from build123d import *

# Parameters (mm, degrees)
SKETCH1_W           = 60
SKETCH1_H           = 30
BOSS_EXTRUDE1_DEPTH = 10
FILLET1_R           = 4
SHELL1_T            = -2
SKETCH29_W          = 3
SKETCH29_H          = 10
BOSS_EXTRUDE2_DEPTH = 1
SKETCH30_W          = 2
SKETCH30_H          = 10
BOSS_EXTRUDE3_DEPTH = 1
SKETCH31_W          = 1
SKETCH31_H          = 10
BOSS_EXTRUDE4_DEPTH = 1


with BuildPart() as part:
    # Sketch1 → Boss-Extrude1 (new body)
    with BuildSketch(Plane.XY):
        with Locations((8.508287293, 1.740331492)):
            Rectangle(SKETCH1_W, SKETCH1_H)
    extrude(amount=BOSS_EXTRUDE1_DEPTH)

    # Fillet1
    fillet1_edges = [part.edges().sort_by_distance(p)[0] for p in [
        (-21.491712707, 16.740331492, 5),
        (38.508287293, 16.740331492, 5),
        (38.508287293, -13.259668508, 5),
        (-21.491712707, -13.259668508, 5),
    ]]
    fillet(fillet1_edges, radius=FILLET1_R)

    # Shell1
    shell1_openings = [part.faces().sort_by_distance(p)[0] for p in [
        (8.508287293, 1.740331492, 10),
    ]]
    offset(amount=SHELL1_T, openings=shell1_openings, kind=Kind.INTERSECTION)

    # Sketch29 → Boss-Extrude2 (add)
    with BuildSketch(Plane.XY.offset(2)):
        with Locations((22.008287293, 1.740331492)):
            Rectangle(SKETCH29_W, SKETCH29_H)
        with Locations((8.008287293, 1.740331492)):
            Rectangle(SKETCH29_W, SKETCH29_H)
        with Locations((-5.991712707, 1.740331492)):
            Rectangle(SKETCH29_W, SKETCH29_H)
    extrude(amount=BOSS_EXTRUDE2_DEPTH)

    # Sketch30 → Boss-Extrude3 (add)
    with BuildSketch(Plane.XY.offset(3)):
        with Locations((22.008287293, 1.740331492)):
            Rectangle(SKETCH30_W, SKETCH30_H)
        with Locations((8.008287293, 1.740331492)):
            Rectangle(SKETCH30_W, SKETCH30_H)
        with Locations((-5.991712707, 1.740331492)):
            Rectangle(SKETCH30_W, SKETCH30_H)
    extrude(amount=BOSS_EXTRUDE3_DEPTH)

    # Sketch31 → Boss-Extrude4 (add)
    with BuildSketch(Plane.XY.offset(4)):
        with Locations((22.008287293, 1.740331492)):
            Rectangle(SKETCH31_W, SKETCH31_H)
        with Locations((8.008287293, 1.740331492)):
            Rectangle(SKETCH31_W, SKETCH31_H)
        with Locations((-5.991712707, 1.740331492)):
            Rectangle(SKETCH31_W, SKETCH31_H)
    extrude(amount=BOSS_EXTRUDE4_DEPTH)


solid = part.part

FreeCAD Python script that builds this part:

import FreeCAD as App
import Part
import Sketcher
Q = App.Units.Quantity


def edges_at(feature, points):
    """Names of the edges that pass closest to the given points."""
    edges = feature.Shape.Edges
    near = lambda p: min(range(len(edges)), key=lambda i: edges[i].distToShape(Part.Vertex(*p))[0])
    return sorted({f"Edge{near(p) + 1}" for p in points})


def faces_at(feature, points):
    """Names of the faces that lie closest to the given points."""
    faces = feature.Shape.Faces
    near = lambda p: min(range(len(faces)), key=lambda i: faces[i].distToShape(Part.Vertex(*p))[0])
    return sorted({f"Face{near(p) + 1}" for p in points})


def add_polygon(sketch, points):
    """Adds a closed chain of lines whose ends are joined by coincident constraints."""
    first, n = sketch.GeometryCount, len(points)
    for a, b in zip(points, points[1:] + points[:1]):
        sketch.addGeometry(Part.LineSegment(App.Vector(*a, 0), App.Vector(*b, 0)), False)
    for i in range(n):
        sketch.addConstraint(Sketcher.Constraint("Coincident", first + i, 2, first + (i + 1) % n, 1))

doc = App.newDocument("Part")
body = doc.addObject("PartDesign::Body", "Body")

sketch1 = body.newObject("Sketcher::SketchObject", "Sketch")
sketch1.AttachmentSupport = (doc.getObject("XY_Plane"), [""])
sketch1.MapMode = "FlatFace"
add_polygon(sketch1, [(-21, 17), (-21, -13), (39, -13), (39, 17)])
sketch1.addConstraint([
    Sketcher.Constraint("Vertical", 0),
    Sketcher.Constraint("Horizontal", 1),
    Sketcher.Constraint("Vertical", 2),
    Sketcher.Constraint("Horizontal", 3),
    Sketcher.Constraint("DistanceX", 1, 1, 1, 2, Q("60 mm")),
    Sketcher.Constraint("DistanceY", 0, 2, 0, 1, Q("30 mm")),
    Sketcher.Constraint("DistanceY", 0, 2, -1, 1, Q("13.259669 mm")),
    Sketcher.Constraint("DistanceX", 0, 2, -1, 1, Q("21.491713 mm")),
])
pad1 = body.newObject("PartDesign::Pad", "Pad")
pad1.Profile = sketch1
pad1.Length = 10
doc.recompute()

fillet = body.newObject("PartDesign::Fillet", "Fillet")
fillet.Base = (pad1, edges_at(pad1, [
    (-21.492, 16.74, 5),
    (38.508, 16.74, 5),
    (38.508, -13.26, 5),
    (-21.492, -13.26, 5),
]))
fillet.Radius = 4
doc.recompute()

thickness = body.newObject("PartDesign::Thickness", "Thickness")
thickness.Base = (fillet, faces_at(fillet, [(8.508, 1.74, 10)]))
thickness.Value = 2
thickness.Reversed = True
thickness.Join = "Intersection"

sketch2 = body.newObject("Sketcher::SketchObject", "Sketch001")
sketch2.AttachmentSupport = (doc.getObject("XY_Plane"), [""])
sketch2.MapMode = "FlatFace"
sketch2.AttachmentOffset = App.Placement(App.Vector(0, 0, 2), App.Rotation())
add_polygon(sketch2, [(20.5, 6.7), (20.5, -3.3), (23.5, -3.3), (23.5, 6.7)])
add_polygon(sketch2, [(6.5, 6.7), (6.5, -3.3), (9.5, -3.3), (9.5, 6.7)])
add_polygon(sketch2, [(-7.5, 6.7), (-7.5, -3.3), (-4.5, -3.3), (-4.5, 6.7)])
sketch2.addConstraint([
    Sketcher.Constraint("Vertical", 0),
    Sketcher.Constraint("Horizontal", 1),
    Sketcher.Constraint("Vertical", 2),
    Sketcher.Constraint("Horizontal", 3),
    Sketcher.Constraint("Vertical", 4),
    Sketcher.Constraint("Horizontal", 5),
    Sketcher.Constraint("Vertical", 6),
    Sketcher.Constraint("Horizontal", 7),
    Sketcher.Constraint("Vertical", 8),
    Sketcher.Constraint("Horizontal", 9),
    Sketcher.Constraint("Vertical", 10),
    Sketcher.Constraint("Horizontal", 11),
    Sketcher.Constraint("Horizontal", 1, 2, 4, 2),
    Sketcher.Constraint("Horizontal", 3, 2, 6, 2),
    Sketcher.Constraint("Horizontal", 5, 2, 8, 2),
    Sketcher.Constraint("Horizontal", 7, 2, 10, 2),
    Sketcher.Constraint("Equal", 3, 5),
    Sketcher.Constraint("Equal", 7, 9),
    Sketcher.Constraint("DistanceX", 1, 1, 1, 2, Q("3 mm")),
    Sketcher.Constraint("DistanceY", 0, 2, 0, 1, Q("10 mm")),
    Sketcher.Constraint("DistanceX", 4, 2, 0, 2, Q("14 mm")),
    Sketcher.Constraint("DistanceX", 8, 2, 4, 2, Q("14 mm")),
    Sketcher.Constraint("DistanceY", 0, 2, -1, 1, Q("3.259669 mm")),
    Sketcher.Constraint("DistanceX", -1, 1, 0, 2, Q("20.508287 mm")),
])
pad2 = body.newObject("PartDesign::Pad", "Pad001")
pad2.Profile = sketch2
pad2.Length = 1

sketch3 = body.newObject("Sketcher::SketchObject", "Sketch002")
sketch3.AttachmentSupport = (doc.getObject("XY_Plane"), [""])
sketch3.MapMode = "FlatFace"
sketch3.AttachmentOffset = App.Placement(App.Vector(0, 0, 3), App.Rotation())
add_polygon(sketch3, [(21, 6.7), (21, -3.3), (23, -3.3), (23, 6.7)])
add_polygon(sketch3, [(7, 6.7), (7, -3.3), (9, -3.3), (9, 6.7)])
add_polygon(sketch3, [(-7, 6.7), (-7, -3.3), (-5, -3.3), (-5, 6.7)])
sketch3.addConstraint([
    Sketcher.Constraint("Vertical", 0),
    Sketcher.Constraint("Horizontal", 1),
    Sketcher.Constraint("Vertical", 2),
    Sketcher.Constraint("Horizontal", 3),
    Sketcher.Constraint("Vertical", 4),
    Sketcher.Constraint("Horizontal", 5),
    Sketcher.Constraint("Vertical", 6),
    Sketcher.Constraint("Horizontal", 7),
    Sketcher.Constraint("Vertical", 8),
    Sketcher.Constraint("Horizontal", 9),
    Sketcher.Constraint("Vertical", 10),
    Sketcher.Constraint("Horizontal", 11),
    Sketcher.Constraint("Horizontal", 1, 2, 4, 2),
    Sketcher.Constraint("Horizontal", 3, 2, 6, 2),
    Sketcher.Constraint("Horizontal", 5, 2, 8, 2),
    Sketcher.Constraint("Horizontal", 7, 2, 10, 2),
    Sketcher.Constraint("Equal", 3, 5),
    Sketcher.Constraint("Equal", 7, 9),
    Sketcher.Constraint("DistanceX", 1, 1, 1, 2, Q("2 mm")),
    Sketcher.Constraint("DistanceY", 0, 2, 0, 1, Q("10 mm")),
    Sketcher.Constraint("DistanceX", 4, 2, 0, 2, Q("14 mm")),
    Sketcher.Constraint("DistanceX", 8, 2, 4, 2, Q("14 mm")),
    Sketcher.Constraint("DistanceY", 0, 2, -1, 1, Q("3.259669 mm")),
    Sketcher.Constraint("DistanceX", -1, 1, 0, 2, Q("21.008287 mm")),
])
pad3 = body.newObject("PartDesign::Pad", "Pad002")
pad3.Profile = sketch3
pad3.Length = 1

sketch4 = body.newObject("Sketcher::SketchObject", "Sketch003")
sketch4.AttachmentSupport = (doc.getObject("XY_Plane"), [""])
sketch4.MapMode = "FlatFace"
sketch4.AttachmentOffset = App.Placement(App.Vector(0, 0, 4), App.Rotation())
add_polygon(sketch4, [(21.5, 6.7), (21.5, -3.3), (22.5, -3.3), (22.5, 6.7)])
add_polygon(sketch4, [(7.5, 6.7), (7.5, -3.3), (8.5, -3.3), (8.5, 6.7)])
add_polygon(sketch4, [(-6.5, 6.7), (-6.5, -3.3), (-5.5, -3.3), (-5.5, 6.7)])
sketch4.addConstraint([
    Sketcher.Constraint("Vertical", 0),
    Sketcher.Constraint("Horizontal", 1),
    Sketcher.Constraint("Vertical", 2),
    Sketcher.Constraint("Horizontal", 3),
    Sketcher.Constraint("Vertical", 4),
    Sketcher.Constraint("Horizontal", 5),
    Sketcher.Constraint("Vertical", 6),
    Sketcher.Constraint("Horizontal", 7),
    Sketcher.Constraint("Vertical", 8),
    Sketcher.Constraint("Horizontal", 9),
    Sketcher.Constraint("Vertical", 10),
    Sketcher.Constraint("Horizontal", 11),
    Sketcher.Constraint("Horizontal", 1, 2, 4, 2),
    Sketcher.Constraint("Horizontal", 3, 2, 6, 2),
    Sketcher.Constraint("Horizontal", 5, 2, 8, 2),
    Sketcher.Constraint("Horizontal", 7, 2, 10, 2),
    Sketcher.Constraint("Equal", 3, 5),
    Sketcher.Constraint("Equal", 7, 9),
    Sketcher.Constraint("DistanceX", 1, 1, 1, 2, Q("1 mm")),
    Sketcher.Constraint("DistanceY", 0, 2, 0, 1, Q("10 mm")),
    Sketcher.Constraint("DistanceX", 4, 2, 0, 2, Q("14 mm")),
    Sketcher.Constraint("DistanceX", 8, 2, 4, 2, Q("14 mm")),
    Sketcher.Constraint("DistanceY", 0, 2, -1, 1, Q("3.259669 mm")),
    Sketcher.Constraint("DistanceX", -1, 1, 0, 2, Q("21.508287 mm")),
])
pad4 = body.newObject("PartDesign::Pad", "Pad003")
pad4.Profile = sketch4
pad4.Length = 1

doc.recompute()
